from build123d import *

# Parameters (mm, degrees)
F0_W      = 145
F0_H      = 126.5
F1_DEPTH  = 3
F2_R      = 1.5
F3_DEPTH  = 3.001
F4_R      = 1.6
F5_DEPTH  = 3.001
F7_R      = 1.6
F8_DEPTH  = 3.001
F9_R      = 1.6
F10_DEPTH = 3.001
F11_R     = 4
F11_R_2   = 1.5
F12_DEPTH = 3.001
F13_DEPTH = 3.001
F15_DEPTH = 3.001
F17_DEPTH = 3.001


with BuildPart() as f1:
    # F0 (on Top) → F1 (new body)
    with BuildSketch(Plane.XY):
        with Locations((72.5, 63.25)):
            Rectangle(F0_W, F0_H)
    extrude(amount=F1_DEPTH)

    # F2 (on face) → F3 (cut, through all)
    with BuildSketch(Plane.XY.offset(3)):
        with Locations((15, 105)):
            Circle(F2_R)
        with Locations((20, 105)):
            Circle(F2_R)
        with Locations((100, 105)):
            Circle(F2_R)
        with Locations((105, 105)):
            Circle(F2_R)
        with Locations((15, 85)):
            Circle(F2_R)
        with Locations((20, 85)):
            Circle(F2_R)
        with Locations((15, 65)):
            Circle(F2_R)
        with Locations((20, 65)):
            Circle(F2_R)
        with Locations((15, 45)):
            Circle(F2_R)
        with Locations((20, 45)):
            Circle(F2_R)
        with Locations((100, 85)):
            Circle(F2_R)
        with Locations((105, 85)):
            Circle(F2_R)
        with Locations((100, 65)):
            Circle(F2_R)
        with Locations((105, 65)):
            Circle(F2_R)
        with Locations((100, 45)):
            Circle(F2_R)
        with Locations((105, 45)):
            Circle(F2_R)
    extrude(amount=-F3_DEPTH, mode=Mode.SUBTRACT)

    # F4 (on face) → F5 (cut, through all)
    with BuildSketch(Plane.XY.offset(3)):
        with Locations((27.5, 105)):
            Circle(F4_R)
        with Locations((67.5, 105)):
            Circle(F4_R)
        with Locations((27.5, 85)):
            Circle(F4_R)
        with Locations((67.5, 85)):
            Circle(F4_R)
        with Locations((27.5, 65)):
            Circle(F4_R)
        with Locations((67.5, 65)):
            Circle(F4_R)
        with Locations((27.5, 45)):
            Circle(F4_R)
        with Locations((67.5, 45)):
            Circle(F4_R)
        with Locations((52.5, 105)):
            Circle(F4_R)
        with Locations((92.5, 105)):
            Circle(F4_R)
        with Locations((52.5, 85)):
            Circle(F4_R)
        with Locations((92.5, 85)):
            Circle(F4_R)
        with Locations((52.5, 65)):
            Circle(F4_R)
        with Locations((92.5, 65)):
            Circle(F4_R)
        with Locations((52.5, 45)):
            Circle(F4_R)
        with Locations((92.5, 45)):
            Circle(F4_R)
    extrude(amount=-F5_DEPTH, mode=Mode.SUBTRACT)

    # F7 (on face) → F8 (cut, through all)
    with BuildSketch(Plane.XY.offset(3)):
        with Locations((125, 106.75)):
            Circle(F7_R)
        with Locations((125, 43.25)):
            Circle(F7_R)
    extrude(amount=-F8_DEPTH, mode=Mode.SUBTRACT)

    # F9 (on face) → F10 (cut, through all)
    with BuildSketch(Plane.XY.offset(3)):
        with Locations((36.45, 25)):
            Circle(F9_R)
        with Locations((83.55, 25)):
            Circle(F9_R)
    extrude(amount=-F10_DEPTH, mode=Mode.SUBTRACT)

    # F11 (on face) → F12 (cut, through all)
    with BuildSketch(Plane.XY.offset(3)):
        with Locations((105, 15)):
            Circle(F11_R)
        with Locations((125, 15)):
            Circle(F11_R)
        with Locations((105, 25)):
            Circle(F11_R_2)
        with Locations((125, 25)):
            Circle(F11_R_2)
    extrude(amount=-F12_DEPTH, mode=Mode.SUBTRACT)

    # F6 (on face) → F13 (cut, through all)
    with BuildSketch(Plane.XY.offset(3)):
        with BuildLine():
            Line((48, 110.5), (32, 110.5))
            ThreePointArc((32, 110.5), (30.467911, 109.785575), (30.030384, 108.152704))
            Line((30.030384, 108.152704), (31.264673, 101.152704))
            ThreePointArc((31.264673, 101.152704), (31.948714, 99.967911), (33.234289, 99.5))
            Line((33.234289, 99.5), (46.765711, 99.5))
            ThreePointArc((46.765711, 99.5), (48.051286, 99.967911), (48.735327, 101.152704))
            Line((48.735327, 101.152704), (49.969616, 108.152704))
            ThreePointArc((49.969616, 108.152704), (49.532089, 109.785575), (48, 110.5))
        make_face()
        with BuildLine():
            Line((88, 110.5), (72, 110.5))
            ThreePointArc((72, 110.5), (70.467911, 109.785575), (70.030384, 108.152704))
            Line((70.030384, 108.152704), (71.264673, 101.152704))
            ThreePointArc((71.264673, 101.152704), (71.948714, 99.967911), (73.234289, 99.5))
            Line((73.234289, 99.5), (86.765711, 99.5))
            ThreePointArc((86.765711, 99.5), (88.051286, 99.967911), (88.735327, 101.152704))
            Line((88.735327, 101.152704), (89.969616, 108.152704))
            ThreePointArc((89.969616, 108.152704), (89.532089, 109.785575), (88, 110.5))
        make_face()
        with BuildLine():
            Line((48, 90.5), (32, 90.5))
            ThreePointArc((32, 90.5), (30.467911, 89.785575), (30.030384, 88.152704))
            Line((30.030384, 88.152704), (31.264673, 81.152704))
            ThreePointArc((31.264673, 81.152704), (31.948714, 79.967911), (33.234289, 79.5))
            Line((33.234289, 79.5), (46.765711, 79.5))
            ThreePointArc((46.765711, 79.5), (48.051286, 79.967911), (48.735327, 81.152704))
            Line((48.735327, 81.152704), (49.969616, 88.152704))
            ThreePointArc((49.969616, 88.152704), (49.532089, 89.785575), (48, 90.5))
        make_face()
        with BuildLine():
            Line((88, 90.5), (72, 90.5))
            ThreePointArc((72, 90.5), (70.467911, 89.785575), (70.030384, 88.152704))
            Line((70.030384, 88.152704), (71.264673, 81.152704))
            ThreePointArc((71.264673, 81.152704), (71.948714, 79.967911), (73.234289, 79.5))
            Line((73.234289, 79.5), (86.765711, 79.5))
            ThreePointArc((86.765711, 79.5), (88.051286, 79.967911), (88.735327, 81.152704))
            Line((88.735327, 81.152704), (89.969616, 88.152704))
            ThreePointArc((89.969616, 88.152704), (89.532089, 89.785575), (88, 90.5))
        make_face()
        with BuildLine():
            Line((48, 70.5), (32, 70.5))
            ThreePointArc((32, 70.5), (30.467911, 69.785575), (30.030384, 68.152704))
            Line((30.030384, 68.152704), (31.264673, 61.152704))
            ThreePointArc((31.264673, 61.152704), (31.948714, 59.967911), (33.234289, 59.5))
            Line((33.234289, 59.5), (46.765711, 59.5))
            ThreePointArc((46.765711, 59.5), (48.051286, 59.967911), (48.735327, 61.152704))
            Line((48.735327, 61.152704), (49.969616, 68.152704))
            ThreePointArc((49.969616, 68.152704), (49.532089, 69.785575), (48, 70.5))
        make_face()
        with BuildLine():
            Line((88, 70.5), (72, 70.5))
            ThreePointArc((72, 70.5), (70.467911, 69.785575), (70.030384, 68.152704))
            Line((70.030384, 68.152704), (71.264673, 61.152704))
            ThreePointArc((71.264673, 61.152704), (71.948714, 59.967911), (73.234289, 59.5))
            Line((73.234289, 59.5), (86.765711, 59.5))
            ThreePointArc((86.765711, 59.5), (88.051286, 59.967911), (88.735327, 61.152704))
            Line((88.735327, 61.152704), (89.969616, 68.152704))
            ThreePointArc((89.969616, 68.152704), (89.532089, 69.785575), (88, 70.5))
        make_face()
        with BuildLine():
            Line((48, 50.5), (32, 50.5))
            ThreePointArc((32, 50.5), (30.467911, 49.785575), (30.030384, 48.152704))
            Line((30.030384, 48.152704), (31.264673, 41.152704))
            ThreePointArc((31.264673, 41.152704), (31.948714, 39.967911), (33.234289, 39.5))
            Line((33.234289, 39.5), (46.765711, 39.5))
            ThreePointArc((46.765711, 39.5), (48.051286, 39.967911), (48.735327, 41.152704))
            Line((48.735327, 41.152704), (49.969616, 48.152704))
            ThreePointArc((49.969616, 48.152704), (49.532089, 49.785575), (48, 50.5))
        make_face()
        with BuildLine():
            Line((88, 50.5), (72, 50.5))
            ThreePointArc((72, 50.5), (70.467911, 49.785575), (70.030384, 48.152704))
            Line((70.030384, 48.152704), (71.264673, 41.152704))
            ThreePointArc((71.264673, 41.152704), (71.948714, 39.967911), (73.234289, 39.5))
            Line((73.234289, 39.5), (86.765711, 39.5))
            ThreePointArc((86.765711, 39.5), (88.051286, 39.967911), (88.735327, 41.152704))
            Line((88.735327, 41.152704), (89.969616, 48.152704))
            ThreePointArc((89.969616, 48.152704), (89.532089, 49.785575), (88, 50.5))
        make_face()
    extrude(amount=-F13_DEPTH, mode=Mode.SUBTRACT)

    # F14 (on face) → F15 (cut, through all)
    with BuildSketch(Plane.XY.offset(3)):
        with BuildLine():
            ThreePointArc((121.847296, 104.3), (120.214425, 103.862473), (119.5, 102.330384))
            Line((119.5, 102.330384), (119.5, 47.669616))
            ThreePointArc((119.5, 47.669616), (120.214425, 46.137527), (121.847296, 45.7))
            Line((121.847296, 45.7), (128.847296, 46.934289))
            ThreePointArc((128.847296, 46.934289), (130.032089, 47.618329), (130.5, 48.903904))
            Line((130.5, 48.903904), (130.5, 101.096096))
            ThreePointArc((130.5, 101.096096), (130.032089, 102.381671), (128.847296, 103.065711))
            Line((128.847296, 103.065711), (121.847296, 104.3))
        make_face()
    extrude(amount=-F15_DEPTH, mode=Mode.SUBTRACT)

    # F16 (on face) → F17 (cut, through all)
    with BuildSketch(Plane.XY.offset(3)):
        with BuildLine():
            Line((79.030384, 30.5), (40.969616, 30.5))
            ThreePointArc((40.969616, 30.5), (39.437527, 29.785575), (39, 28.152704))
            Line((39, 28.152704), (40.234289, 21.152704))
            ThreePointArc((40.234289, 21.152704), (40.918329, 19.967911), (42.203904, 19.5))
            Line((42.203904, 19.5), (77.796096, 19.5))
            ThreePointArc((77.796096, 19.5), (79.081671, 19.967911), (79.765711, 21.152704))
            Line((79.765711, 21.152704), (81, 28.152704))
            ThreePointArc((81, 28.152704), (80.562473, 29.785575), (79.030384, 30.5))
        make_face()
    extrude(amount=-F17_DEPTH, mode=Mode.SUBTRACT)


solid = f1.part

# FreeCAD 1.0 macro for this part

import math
import FreeCAD as App
import Part
import Sketcher
Q = App.Units.Quantity


def add_polygon(sketch, points):
    """Adds a closed chain of lines whose ends are joined by coincident constraints."""
    first, n = sketch.GeometryCount, len(points)
    for a, b in zip(points, points[1:] + points[:1]):
        sketch.addGeometry(Part.LineSegment(App.Vector(*a, 0), App.Vector(*b, 0)), False)
    for i in range(n):
        sketch.addConstraint(Sketcher.Constraint("Coincident", first + i, 2, first + (i + 1) % n, 1))

doc = App.newDocument("Part")
body = doc.addObject("PartDesign::Body", "Body")

sketch1 = body.newObject("Sketcher::SketchObject", "Sketch")
sketch1.AttachmentSupport = (doc.getObject("XY_Plane"), [""])
sketch1.MapMode = "FlatFace"
add_polygon(sketch1, [(0, 126), (0, 0), (145, 0), (145, 126)])
sketch1.addConstraint([
    Sketcher.Constraint("Vertical", 0),
    Sketcher.Constraint("Horizontal", 1),
    Sketcher.Constraint("Vertical", 2),
    Sketcher.Constraint("Horizontal", 3),
    Sketcher.Constraint("Coincident", 0, 2, -1, 1),
    Sketcher.Constraint("DistanceX", 1, 1, 1, 2, Q("145 mm")),
    Sketcher.Constraint("DistanceY", 0, 2, 0, 1, Q("126.5 mm")),
])
pad1 = body.newObject("PartDesign::Pad", "Pad")
pad1.Profile = sketch1
pad1.Length = 3

sketch2 = body.newObject("Sketcher::SketchObject", "Sketch001")
sketch2.AttachmentSupport = (doc.getObject("XY_Plane"), [""])
sketch2.MapMode = "FlatFace"
sketch2.AttachmentOffset = App.Placement(App.Vector(0, 0, 3), App.Rotation())
sketch2.addGeometry([
    Part.Circle(App.Vector(15, 105, 0), App.Vector(0, 0, 1), 1.5),
    Part.Circle(App.Vector(20, 105, 0), App.Vector(0, 0, 1), 1.5),
    Part.Circle(App.Vector(100, 105, 0), App.Vector(0, 0, 1), 1.5),
    Part.Circle(App.Vector(105, 105, 0), App.Vector(0, 0, 1), 1.5),
    Part.Circle(App.Vector(15, 85, 0), App.Vector(0, 0, 1), 1.5),
    Part.Circle(App.Vector(20, 85, 0), App.Vector(0, 0, 1), 1.5),
    Part.Circle(App.Vector(15, 65, 0), App.Vector(0, 0, 1), 1.5),
    Part.Circle(App.Vector(20, 65, 0), App.Vector(0, 0, 1), 1.5),
    Part.Circle(App.Vector(15, 45, 0), App.Vector(0, 0, 1), 1.5),
    Part.Circle(App.Vector(20, 45, 0), App.Vector(0, 0, 1), 1.5),
    Part.Circle(App.Vector(100, 85, 0), App.Vector(0, 0, 1), 1.5),
    Part.Circle(App.Vector(105, 85, 0), App.Vector(0, 0, 1), 1.5),
    Part.Circle(App.Vector(100, 65, 0), App.Vector(0, 0, 1), 1.5),
    Part.Circle(App.Vector(105, 65, 0), App.Vector(0, 0, 1), 1.5),
    Part.Circle(App.Vector(100, 45, 0), App.Vector(0, 0, 1), 1.5),
    Part.Circle(App.Vector(105, 45, 0), App.Vector(0, 0, 1), 1.5),
], False)
sketch2.addConstraint([
    Sketcher.Constraint("Equal", 0, 1),
    Sketcher.Constraint("Equal", 1, 2),
    Sketcher.Constraint("Equal", 2, 3),
    Sketcher.Constraint("Equal", 3, 4),
    Sketcher.Constraint("Equal", 4, 5),
    Sketcher.Constraint("Equal", 5, 6),
    Sketcher.Constraint("Equal", 6, 7),
    Sketcher.Constraint("Equal", 7, 8),
    Sketcher.Constraint("Equal", 8, 9),
    Sketcher.Constraint("Equal", 9, 10),
    Sketcher.Constraint("Equal", 10, 11),
    Sketcher.Constraint("Equal", 11, 12),
    Sketcher.Constraint("Equal", 12, 13),
    Sketcher.Constraint("Equal", 13, 14),
    Sketcher.Constraint("Equal", 14, 15),
    Sketcher.Constraint("Horizontal", 0, 3, 1, 3),
    Sketcher.Constraint("Horizontal", 1, 3, 2, 3),
    Sketcher.Constraint("Horizontal", 2, 3, 3, 3),
    Sketcher.Constraint("Horizontal", 4, 3, 5, 3),
    Sketcher.Constraint("Horizontal", 6, 3, 7, 3),
    Sketcher.Constraint("Horizontal", 8, 3, 9, 3),
    Sketcher.Constraint("Horizontal", 5, 3, 10, 3),
    Sketcher.Constraint("Horizontal", 10, 3, 11, 3),
    Sketcher.Constraint("Horizontal", 7, 3, 12, 3),
    Sketcher.Constraint("Horizontal", 12, 3, 13, 3),
    Sketcher.Constraint("Horizontal", 9, 3, 14, 3),
    Sketcher.Constraint("Horizontal", 14, 3, 15, 3),
    Sketcher.Constraint("Vertical", 0, 3, 4, 3),
    Sketcher.Constraint("Vertical", 1, 3, 5, 3),
    Sketcher.Constraint("Vertical", 4, 3, 6, 3),
    Sketcher.Constraint("Vertical", 5, 3, 7, 3),
    Sketcher.Constraint("Vertical", 6, 3, 8, 3),
    Sketcher.Constraint("Vertical", 7, 3, 9, 3),
    Sketcher.Constraint("Vertical", 2, 3, 10, 3),
    Sketcher.Constraint("Vertical", 3, 3, 11, 3),
    Sketcher.Constraint("Vertical", 10, 3, 12, 3),
    Sketcher.Constraint("Vertical", 11, 3, 13, 3),
    Sketcher.Constraint("Vertical", 12, 3, 14, 3),
    Sketcher.Constraint("Vertical", 13, 3, 15, 3),
    Sketcher.Constraint("Diameter", 0, Q("3 mm")),
    Sketcher.Constraint("DistanceX", -1, 1, 0, 3, Q("15 mm")),
    Sketcher.Constraint("DistanceY", -1, 1, 0, 3, Q("105 mm")),
    Sketcher.Constraint("DistanceX", -1, 1, 1, 3, Q("20 mm")),
    Sketcher.Constraint("DistanceX", -1, 1, 2, 3, Q("100 mm")),
    Sketcher.Constraint("DistanceX", -1, 1, 3, 3, Q("105 mm")),
    Sketcher.Constraint("DistanceY", -1, 1, 4, 3, Q("85 mm")),
    Sketcher.Constraint("DistanceY", -1, 1, 6, 3, Q("65 mm")),
    Sketcher.Constraint("DistanceY", -1, 1, 8, 3, Q("45 mm")),
])
pocket1 = body.newObject("PartDesign::Pocket", "Pocket")
pocket1.Profile = sketch2
pocket1.Type = "ThroughAll"

sketch3 = body.newObject("Sketcher::SketchObject", "Sketch002")
sketch3.AttachmentSupport = (doc.getObject("XY_Plane"), [""])
sketch3.MapMode = "FlatFace"
sketch3.AttachmentOffset = App.Placement(App.Vector(0, 0, 3), App.Rotation())
sketch3.addGeometry([
    Part.Circle(App.Vector(27.5, 105, 0), App.Vector(0, 0, 1), 1.6),
    Part.Circle(App.Vector(67.5, 105, 0), App.Vector(0, 0, 1), 1.6),
    Part.Circle(App.Vector(27.5, 85, 0), App.Vector(0, 0, 1), 1.6),
    Part.Circle(App.Vector(67.5, 85, 0), App.Vector(0, 0, 1), 1.6),
    Part.Circle(App.Vector(27.5, 65, 0), App.Vector(0, 0, 1), 1.6),
    Part.Circle(App.Vector(67.5, 65, 0), App.Vector(0, 0, 1), 1.6),
    Part.Circle(App.Vector(27.5, 45, 0), App.Vector(0, 0, 1), 1.6),
    Part.Circle(App.Vector(67.5, 45, 0), App.Vector(0, 0, 1), 1.6),
    Part.Circle(App.Vector(52.5, 105, 0), App.Vector(0, 0, 1), 1.6),
    Part.Circle(App.Vector(92.5, 105, 0), App.Vector(0, 0, 1), 1.6),
    Part.Circle(App.Vector(52.5, 85, 0), App.Vector(0, 0, 1), 1.6),
    Part.Circle(App.Vector(92.5, 85, 0), App.Vector(0, 0, 1), 1.6),
    Part.Circle(App.Vector(52.5, 65, 0), App.Vector(0, 0, 1), 1.6),
    Part.Circle(App.Vector(92.5, 65, 0), App.Vector(0, 0, 1), 1.6),
    Part.Circle(App.Vector(52.5, 45, 0), App.Vector(0, 0, 1), 1.6),
    Part.Circle(App.Vector(92.5, 45, 0), App.Vector(0, 0, 1), 1.6),
], False)
sketch3.addConstraint([
    Sketcher.Constraint("Equal", 0, 1),
    Sketcher.Constraint("Equal", 1, 2),
    Sketcher.Constraint("Equal", 2, 3),
    Sketcher.Constraint("Equal", 3, 4),
    Sketcher.Constraint("Equal", 4, 5),
    Sketcher.Constraint("Equal", 5, 6),
    Sketcher.Constraint("Equal", 6, 7),
    Sketcher.Constraint("Equal", 7, 8),
    Sketcher.Constraint("Equal", 8, 9),
    Sketcher.Constraint("Equal", 9, 10),
    Sketcher.Constraint("Equal", 10, 11),
    Sketcher.Constraint("Equal", 11, 12),
    Sketcher.Constraint("Equal", 12, 13),
    Sketcher.Constraint("Equal", 13, 14),
    Sketcher.Constraint("Equal", 14, 15),
    Sketcher.Constraint("Horizontal", 0, 3, 1, 3),
    Sketcher.Constraint("Horizontal", 2, 3, 3, 3),
    Sketcher.Constraint("Horizontal", 4, 3, 5, 3),
    Sketcher.Constraint("Horizontal", 6, 3, 7, 3),
    Sketcher.Constraint("Horizontal", 1, 3, 8, 3),
    Sketcher.Constraint("Horizontal", 8, 3, 9, 3),
    Sketcher.Constraint("Horizontal", 3, 3, 10, 3),
    Sketcher.Constraint("Horizontal", 10, 3, 11, 3),
    Sketcher.Constraint("Horizontal", 5, 3, 12, 3),
    Sketcher.Constraint("Horizontal", 12, 3, 13, 3),
    Sketcher.Constraint("Horizontal", 7, 3, 14, 3),
    Sketcher.Constraint("Horizontal", 14, 3, 15, 3),
    Sketcher.Constraint("Vertical", 0, 3, 2, 3),
    Sketcher.Constraint("Vertical", 1, 3, 3, 3),
    Sketcher.Constraint("Vertical", 2, 3, 4, 3),
    Sketcher.Constraint("Vertical", 3, 3, 5, 3),
    Sketcher.Constraint("Vertical", 4, 3, 6, 3),
    Sketcher.Constraint("Vertical", 5, 3, 7, 3),
    Sketcher.Constraint("Vertical", 8, 3, 10, 3),
    Sketcher.Constraint("Vertical", 9, 3, 11, 3),
    Sketcher.Constraint("Vertical", 10, 3, 12, 3),
    Sketcher.Constraint("Vertical", 11, 3, 13, 3),
    Sketcher.Constraint("Vertical", 12, 3, 14, 3),
    Sketcher.Constraint("Vertical", 13, 3, 15, 3),
    Sketcher.Constraint("Diameter", 0, Q("3.2 mm")),
    Sketcher.Constraint("DistanceY", -1, 1, 0, 3, Q("105 mm")),
    Sketcher.Constraint("DistanceY", -1, 1, 2, 3, Q("85 mm")),
    Sketcher.Constraint("DistanceY", -1, 1, 4, 3, Q("65 mm")),
    Sketcher.Constraint("DistanceY", -1, 1, 6, 3, Q("45 mm")),
    Sketcher.Constraint("DistanceX", 0, 3, 1, 3, Q("40 mm")),
    Sketcher.Constraint("DistanceX", 8, 3, 1, 3, Q("15 mm")),
    Sketcher.Constraint("DistanceX", 1, 3, 9, 3, Q("25 mm")),
    Sketcher.Constraint("DistanceX", -1, 1, 0, 3, Q("27.5 mm")),
])
pocket2 = body.newObject("PartDesign::Pocket", "Pocket001")
pocket2.Profile = sketch3
pocket2.Type = "ThroughAll"

sketch4 = body.newObject("Sketcher::SketchObject", "Sketch003")
sketch4.AttachmentSupport = (doc.getObject("XY_Plane"), [""])
sketch4.MapMode = "FlatFace"
sketch4.AttachmentOffset = App.Placement(App.Vector(0, 0, 3), App.Rotation())
sketch4.addGeometry([
    Part.Circle(App.Vector(125, 106.8, 0), App.Vector(0, 0, 1), 1.6),
    Part.Circle(App.Vector(125, 43.2, 0), App.Vector(0, 0, 1), 1.6),
], False)
sketch4.addConstraint([
    Sketcher.Constraint("Equal", 0, 1),
    Sketcher.Constraint("Vertical", 0, 3, 1, 3),
    Sketcher.Constraint("Diameter", 0, Q("3.2 mm")),
    Sketcher.Constraint("DistanceX", -1, 1, 0, 3, Q("125 mm")),
    Sketcher.Constraint("DistanceY", 1, 3, 0, 3, Q("63.5 mm")),
    Sketcher.Constraint("DistanceY", -1, 1, 0, 3, Q("106.75 mm")),
])
pocket3 = body.newObject("PartDesign::Pocket", "Pocket002")
pocket3.Profile = sketch4
pocket3.Type = "ThroughAll"

sketch5 = body.newObject("Sketcher::SketchObject", "Sketch004")
sketch5.AttachmentSupport = (doc.getObject("XY_Plane"), [""])
sketch5.MapMode = "FlatFace"
sketch5.AttachmentOffset = App.Placement(App.Vector(0, 0, 3), App.Rotation())
sketch5.addGeometry([
    Part.Circle(App.Vector(36.5, 25, 0), App.Vector(0, 0, 1), 1.6),
    Part.Circle(App.Vector(83.5, 25, 0), App.Vector(0, 0, 1), 1.6),
], False)
sketch5.addConstraint([
    Sketcher.Constraint("Equal", 0, 1),
    Sketcher.Constraint("Horizontal", 0, 3, 1, 3),
    Sketcher.Constraint("Diameter", 0, Q("3.2 mm")),
    Sketcher.Constraint("DistanceY", -1, 1, 0, 3, Q("25 mm")),
    Sketcher.Constraint("DistanceX", 0, 3, 1, 3, Q("47.1 mm")),
    Sketcher.Constraint("DistanceX", -1, 1, 0, 3, Q("36.45 mm")),
])
pocket4 = body.newObject("PartDesign::Pocket", "Pocket003")
pocket4.Profile = sketch5
pocket4.Type = "ThroughAll"

sketch6 = body.newObject("Sketcher::SketchObject", "Sketch005")
sketch6.AttachmentSupport = (doc.getObject("XY_Plane"), [""])
sketch6.MapMode = "FlatFace"
sketch6.AttachmentOffset = App.Placement(App.Vector(0, 0, 3), App.Rotation())
sketch6.addGeometry([
    Part.Circle(App.Vector(105, 15, 0), App.Vector(0, 0, 1), 4),
    Part.Circle(App.Vector(125, 15, 0), App.Vector(0, 0, 1), 4),
    Part.Circle(App.Vector(105, 25, 0), App.Vector(0, 0, 1), 1.5),
    Part.Circle(App.Vector(125, 25, 0), App.Vector(0, 0, 1), 1.5),
], False)
sketch6.addConstraint([
    Sketcher.Constraint("Equal", 0, 1),
    Sketcher.Constraint("Equal", 2, 3),
    Sketcher.Constraint("Horizontal", 0, 3, 1, 3),
    Sketcher.Constraint("Horizontal", 2, 3, 3, 3),
    Sketcher.Constraint("Vertical", 0, 3, 2, 3),
    Sketcher.Constraint("Vertical", 1, 3, 3, 3),
    Sketcher.Constraint("Diameter", 0, Q("8 mm")),
    Sketcher.Constraint("Diameter", 2, Q("3 mm")),
    Sketcher.Constraint("DistanceX", -1, 1, 0, 3, Q("105 mm")),
    Sketcher.Constraint("DistanceY", -1, 1, 0, 3, Q("15 mm")),
    Sketcher.Constraint("DistanceX", -1, 1, 1, 3, Q("125 mm")),
    Sketcher.Constraint("DistanceY", -1, 1, 2, 3, Q("25 mm")),
])
pocket5 = body.newObject("PartDesign::Pocket", "Pocket004")
pocket5.Profile = sketch6
pocket5.Type = "ThroughAll"

sketch7 = body.newObject("Sketcher::SketchObject", "Sketch006")
sketch7.AttachmentSupport = (doc.getObject("XY_Plane"), [""])
sketch7.MapMode = "FlatFace"
sketch7.AttachmentOffset = App.Placement(App.Vector(0, 0, 3), App.Rotation())
sketch7.addGeometry([
    Part.LineSegment(App.Vector(48, 110.5, 0), App.Vector(32, 110.5, 0)),
    Part.ArcOfCircle(Part.Circle(App.Vector(32, 108.5, 0), App.Vector(0, 0, 1), 2), math.radians(90), math.radians(190)),
    Part.LineSegment(App.Vector(30, 108.2, 0), App.Vector(31.3, 101.2, 0)),
    Part.ArcOfCircle(Part.Circle(App.Vector(33.2, 101.5, 0), App.Vector(0, 0, 1), 2), math.radians(-170), math.radians(-90)),
    Part.LineSegment(App.Vector(33.2, 99.5, 0), App.Vector(46.8, 99.5, 0)),
    Part.ArcOfCircle(Part.Circle(App.Vector(46.8, 101.5, 0), App.Vector(0, 0, 1), 2), math.radians(-90), math.radians(-10)),
    Part.LineSegment(App.Vector(48.7, 101.2, 0), App.Vector(50, 108.2, 0)),
    Part.ArcOfCircle(Part.Circle(App.Vector(48, 108.5, 0), App.Vector(0, 0, 1), 2), math.radians(-10), math.radians(90)),
    Part.LineSegment(App.Vector(88, 110.5, 0), App.Vector(72, 110.5, 0)),
    Part.ArcOfCircle(Part.Circle(App.Vector(72, 108.5, 0), App.Vector(0, 0, 1), 2), math.radians(90), math.radians(190)),
    Part.LineSegment(App.Vector(70, 108.2, 0), App.Vector(71.3, 101.2, 0)),
    Part.ArcOfCircle(Part.Circle(App.Vector(73.2, 101.5, 0), App.Vector(0, 0, 1), 2), math.radians(-170), math.radians(-90)),
    Part.LineSegment(App.Vector(73.2, 99.5, 0), App.Vector(86.8, 99.5, 0)),
    Part.ArcOfCircle(Part.Circle(App.Vector(86.8, 101.5, 0), App.Vector(0, 0, 1), 2), math.radians(-90), math.radians(-10)),
    Part.LineSegment(App.Vector(88.7, 101.2, 0), App.Vector(90, 108.2, 0)),
    Part.ArcOfCircle(Part.Circle(App.Vector(88, 108.5, 0), App.Vector(0, 0, 1), 2), math.radians(-10), math.radians(90)),
    Part.LineSegment(App.Vector(48, 90.5, 0), App.Vector(32, 90.5, 0)),
    Part.ArcOfCircle(Part.Circle(App.Vector(32, 88.5, 0), App.Vector(0, 0, 1), 2), math.radians(90), math.radians(190)),
    Part.LineSegment(App.Vector(30, 88.2, 0), App.Vector(31.3, 81.2, 0)),
    Part.ArcOfCircle(Part.Circle(App.Vector(33.2, 81.5, 0), App.Vector(0, 0, 1), 2), math.radians(-170), math.radians(-90)),
    Part.LineSegment(App.Vector(33.2, 79.5, 0), App.Vector(46.8, 79.5, 0)),
    Part.ArcOfCircle(Part.Circle(App.Vector(46.8, 81.5, 0), App.Vector(0, 0, 1), 2), math.radians(-90), math.radians(-10)),
    Part.LineSegment(App.Vector(48.7, 81.2, 0), App.Vector(50, 88.2, 0)),
    Part.ArcOfCircle(Part.Circle(App.Vector(48, 88.5, 0), App.Vector(0, 0, 1), 2), math.radians(-10), math.radians(90)),
    Part.LineSegment(App.Vector(88, 90.5, 0), App.Vector(72, 90.5, 0)),
    Part.ArcOfCircle(Part.Circle(App.Vector(72, 88.5, 0), App.Vector(0, 0, 1), 2), math.radians(90), math.radians(190)),
    Part.LineSegment(App.Vector(70, 88.2, 0), App.Vector(71.3, 81.2, 0)),
    Part.ArcOfCircle(Part.Circle(App.Vector(73.2, 81.5, 0), App.Vector(0, 0, 1), 2), math.radians(-170), math.radians(-90)),
    Part.LineSegment(App.Vector(73.2, 79.5, 0), App.Vector(86.8, 79.5, 0)),
    Part.ArcOfCircle(Part.Circle(App.Vector(86.8, 81.5, 0), App.Vector(0, 0, 1), 2), math.radians(-90), math.radians(-10)),
    Part.LineSegment(App.Vector(88.7, 81.2, 0), App.Vector(90, 88.2, 0)),
    Part.ArcOfCircle(Part.Circle(App.Vector(88, 88.5, 0), App.Vector(0, 0, 1), 2), math.radians(-10), math.radians(90)),
    Part.LineSegment(App.Vector(48, 70.5, 0), App.Vector(32, 70.5, 0)),
    Part.ArcOfCircle(Part.Circle(App.Vector(32, 68.5, 0), App.Vector(0, 0, 1), 2), math.radians(90), math.radians(190)),
    Part.LineSegment(App.Vector(30, 68.2, 0), App.Vector(31.3, 61.2, 0)),
    Part.ArcOfCircle(Part.Circle(App.Vector(33.2, 61.5, 0), App.Vector(0, 0, 1), 2), math.radians(-170), math.radians(-90)),
    Part.LineSegment(App.Vector(33.2, 59.5, 0), App.Vector(46.8, 59.5, 0)),
    Part.ArcOfCircle(Part.Circle(App.Vector(46.8, 61.5, 0), App.Vector(0, 0, 1), 2), math.radians(-90), math.radians(-10)),
    Part.LineSegment(App.Vector(48.7, 61.2, 0), App.Vector(50, 68.2, 0)),
    Part.ArcOfCircle(Part.Circle(App.Vector(48, 68.5, 0), App.Vector(0, 0, 1), 2), math.radians(-10), math.radians(90)),
    Part.LineSegment(App.Vector(88, 70.5, 0), App.Vector(72, 70.5, 0)),
    Part.ArcOfCircle(Part.Circle(App.Vector(72, 68.5, 0), App.Vector(0, 0, 1), 2), math.radians(90), math.radians(190)),
    Part.LineSegment(App.Vector(70, 68.2, 0), App.Vector(71.3, 61.2, 0)),
    Part.ArcOfCircle(Part.Circle(App.Vector(73.2, 61.5, 0), App.Vector(0, 0, 1), 2), math.radians(-170), math.radians(-90)),
    Part.LineSegment(App.Vector(73.2, 59.5, 0), App.Vector(86.8, 59.5, 0)),
    Part.ArcOfCircle(Part.Circle(App.Vector(86.8, 61.5, 0), App.Vector(0, 0, 1), 2), math.radians(-90), math.radians(-10)),
    Part.LineSegment(App.Vector(88.7, 61.2, 0), App.Vector(90, 68.2, 0)),
    Part.ArcOfCircle(Part.Circle(App.Vector(88, 68.5, 0), App.Vector(0, 0, 1), 2), math.radians(-10), math.radians(90)),
    Part.LineSegment(App.Vector(48, 50.5, 0), App.Vector(32, 50.5, 0)),
    Part.ArcOfCircle(Part.Circle(App.Vector(32, 48.5, 0), App.Vector(0, 0, 1), 2), math.radians(90), math.radians(190)),
    Part.LineSegment(App.Vector(30, 48.2, 0), App.Vector(31.3, 41.2, 0)),
    Part.ArcOfCircle(Part.Circle(App.Vector(33.2, 41.5, 0), App.Vector(0, 0, 1), 2), math.radians(-170), math.radians(-90)),
    Part.LineSegment(App.Vector(33.2, 39.5, 0), App.Vector(46.8, 39.5, 0)),
    Part.ArcOfCircle(Part.Circle(App.Vector(46.8, 41.5, 0), App.Vector(0, 0, 1), 2), math.radians(-90), math.radians(-10)),
    Part.LineSegment(App.Vector(48.7, 41.2, 0), App.Vector(50, 48.2, 0)),
    Part.ArcOfCircle(Part.Circle(App.Vector(48, 48.5, 0), App.Vector(0, 0, 1), 2), math.radians(-10), math.radians(90)),
    Part.LineSegment(App.Vector(88, 50.5, 0), App.Vector(72, 50.5, 0)),
    Part.ArcOfCircle(Part.Circle(App.Vector(72, 48.5, 0), App.Vector(0, 0, 1), 2), math.radians(90), math.radians(190)),
    Part.LineSegment(App.Vector(70, 48.2, 0), App.Vector(71.3, 41.2, 0)),
    Part.ArcOfCircle(Part.Circle(App.Vector(73.2, 41.5, 0), App.Vector(0, 0, 1), 2), math.radians(-170), math.radians(-90)),
    Part.LineSegment(App.Vector(73.2, 39.5, 0), App.Vector(86.8, 39.5, 0)),
    Part.ArcOfCircle(Part.Circle(App.Vector(86.8, 41.5, 0), App.Vector(0, 0, 1), 2), math.radians(-90), math.radians(-10)),
    Part.LineSegment(App.Vector(88.7, 41.2, 0), App.Vector(90, 48.2, 0)),
    Part.ArcOfCircle(Part.Circle(App.Vector(88, 48.5, 0), App.Vector(0, 0, 1), 2), math.radians(-10), math.radians(90)),
], False)
sketch7.addConstraint([
    Sketcher.Constraint("Tangent", 0, 2, 1, 1),
    Sketcher.Constraint("Tangent", 1, 2, 2, 1),
    Sketcher.Constraint("Tangent", 2, 2, 3, 1),
    Sketcher.Constraint("Tangent", 3, 2, 4, 1),
    Sketcher.Constraint("Tangent", 4, 2, 5, 1),
    Sketcher.Constraint("Tangent", 5, 2, 6, 1),
    Sketcher.Constraint("Tangent", 6, 2, 7, 1),
    Sketcher.Constraint("Tangent", 7, 2, 0, 1),
    Sketcher.Constraint("Tangent", 8, 2, 9, 1),
    Sketcher.Constraint("Tangent", 9, 2, 10, 1),
    Sketcher.Constraint("Tangent", 10, 2, 11, 1),
    Sketcher.Constraint("Tangent", 11, 2, 12, 1),
    Sketcher.Constraint("Tangent", 12, 2, 13, 1),
    Sketcher.Constraint("Tangent", 13, 2, 14, 1),
    Sketcher.Constraint("Tangent", 14, 2, 15, 1),
    Sketcher.Constraint("Tangent", 15, 2, 8, 1),
    Sketcher.Constraint("Tangent", 16, 2, 17, 1),
    Sketcher.Constraint("Tangent", 17, 2, 18, 1),
    Sketcher.Constraint("Tangent", 18, 2, 19, 1),
    Sketcher.Constraint("Tangent", 19, 2, 20, 1),
    Sketcher.Constraint("Tangent", 20, 2, 21, 1),
    Sketcher.Constraint("Tangent", 21, 2, 22, 1),
    Sketcher.Constraint("Tangent", 22, 2, 23, 1),
    Sketcher.Constraint("Tangent", 23, 2, 16, 1),
    Sketcher.Constraint("Tangent", 24, 2, 25, 1),
    Sketcher.Constraint("Tangent", 25, 2, 26, 1),
    Sketcher.Constraint("Tangent", 26, 2, 27, 1),
    Sketcher.Constraint("Tangent", 27, 2, 28, 1),
    Sketcher.Constraint("Tangent", 28, 2, 29, 1),
    Sketcher.Constraint("Tangent", 29, 2, 30, 1),
    Sketcher.Constraint("Tangent", 30, 2, 31, 1),
    Sketcher.Constraint("Tangent", 31, 2, 24, 1),
    Sketcher.Constraint("Tangent", 32, 2, 33, 1),
    Sketcher.Constraint("Tangent", 33, 2, 34, 1),
    Sketcher.Constraint("Tangent", 34, 2, 35, 1),
    Sketcher.Constraint("Tangent", 35, 2, 36, 1),
    Sketcher.Constraint("Tangent", 36, 2, 37, 1),
    Sketcher.Constraint("Tangent", 37, 2, 38, 1),
    Sketcher.Constraint("Tangent", 38, 2, 39, 1),
    Sketcher.Constraint("Tangent", 39, 2, 32, 1),
    Sketcher.Constraint("Tangent", 40, 2, 41, 1),
    Sketcher.Constraint("Tangent", 41, 2, 42, 1),
    Sketcher.Constraint("Tangent", 42, 2, 43, 1),
    Sketcher.Constraint("Tangent", 43, 2, 44, 1),
    Sketcher.Constraint("Tangent", 44, 2, 45, 1),
    Sketcher.Constraint("Tangent", 45, 2, 46, 1),
    Sketcher.Constraint("Tangent", 46, 2, 47, 1),
    Sketcher.Constraint("Tangent", 47, 2, 40, 1),
    Sketcher.Constraint("Tangent", 48, 2, 49, 1),
    Sketcher.Constraint("Tangent", 49, 2, 50, 1),
    Sketcher.Constraint("Tangent", 50, 2, 51, 1),
    Sketcher.Constraint("Tangent", 51, 2, 52, 1),
    Sketcher.Constraint("Tangent", 52, 2, 53, 1),
    Sketcher.Constraint("Tangent", 53, 2, 54, 1),
    Sketcher.Constraint("Tangent", 54, 2, 55, 1),
    Sketcher.Constraint("Tangent", 55, 2, 48, 1),
    Sketcher.Constraint("Tangent", 56, 2, 57, 1),
    Sketcher.Constraint("Tangent", 57, 2, 58, 1),
    Sketcher.Constraint("Tangent", 58, 2, 59, 1),
    Sketcher.Constraint("Tangent", 59, 2, 60, 1),
    Sketcher.Constraint("Tangent", 60, 2, 61, 1),
    Sketcher.Constraint("Tangent", 61, 2, 62, 1),
    Sketcher.Constraint("Tangent", 62, 2, 63, 1),
    Sketcher.Constraint("Tangent", 63, 2, 56, 1),
    Sketcher.Constraint("Horizontal", 0),
    Sketcher.Constraint("Horizontal", 4),
    Sketcher.Constraint("Horizontal", 8),
    Sketcher.Constraint("Horizontal", 12),
    Sketcher.Constraint("Horizontal", 16),
    Sketcher.Constraint("Horizontal", 20),
    Sketcher.Constraint("Horizontal", 24),
    Sketcher.Constraint("Horizontal", 28),
    Sketcher.Constraint("Horizontal", 32),
    Sketcher.Constraint("Horizontal", 36),
    Sketcher.Constraint("Horizontal", 40),
    Sketcher.Constraint("Horizontal", 44),
    Sketcher.Constraint("Horizontal", 48),
    Sketcher.Constraint("Horizontal", 52),
    Sketcher.Constraint("Horizontal", 56),
    Sketcher.Constraint("Horizontal", 60),
    Sketcher.Constraint("Equal", 1, 3),
    Sketcher.Constraint("Equal", 3, 5),
    Sketcher.Constraint("Equal", 5, 7),
    Sketcher.Constraint("Equal", 7, 9),
    Sketcher.Constraint("Equal", 9, 11),
    Sketcher.Constraint("Equal", 11, 13),
    Sketcher.Constraint("Equal", 13, 15),
    Sketcher.Constraint("Equal", 15, 17),
    Sketcher.Constraint("Equal", 17, 19),
    Sketcher.Constraint("Equal", 19, 21),
    Sketcher.Constraint("Equal", 21, 23),
    Sketcher.Constraint("Equal", 23, 25),
    Sketcher.Constraint("Equal", 25, 27),
    Sketcher.Constraint("Equal", 27, 29),
    Sketcher.Constraint("Equal", 29, 31),
    Sketcher.Constraint("Equal", 31, 33),
    Sketcher.Constraint("Equal", 33, 35),
    Sketcher.Constraint("Equal", 35, 37),
    Sketcher.Constraint("Equal", 37, 39),
    Sketcher.Constraint("Equal", 39, 41),
    Sketcher.Constraint("Equal", 41, 43),
    Sketcher.Constraint("Equal", 43, 45),
    Sketcher.Constraint("Equal", 45, 47),
    Sketcher.Constraint("Equal", 47, 49),
    Sketcher.Constraint("Equal", 49, 51),
    Sketcher.Constraint("Equal", 51, 53),
    Sketcher.Constraint("Equal", 53, 55),
    Sketcher.Constraint("Equal", 55, 57),
    Sketcher.Constraint("Equal", 57, 59),
    Sketcher.Constraint("Equal", 59, 61),
    Sketcher.Constraint("Equal", 61, 63),
    Sketcher.Constraint("Parallel", 2, 10),
    Sketcher.Constraint("Parallel", 6, 14),
    Sketcher.Constraint("Parallel", 10, 18),
    Sketcher.Constraint("Parallel", 14, 22),
    Sketcher.Constraint("Parallel", 18, 26),
    Sketcher.Constraint("Parallel", 22, 30),
    Sketcher.Constraint("Parallel", 26, 34),
    Sketcher.Constraint("Parallel", 30, 38),
    Sketcher.Constraint("Parallel", 34, 42),
    Sketcher.Constraint("Parallel", 38, 46),
    Sketcher.Constraint("Parallel", 42, 50),
    Sketcher.Constraint("Parallel", 46, 54),
    Sketcher.Constraint("Parallel", 50, 58),
    Sketcher.Constraint("Parallel", 54, 62),
    Sketcher.Constraint("Horizontal", 7, 3, 9, 3),
    Sketcher.Constraint("Horizontal", 5, 3, 11, 3),
    Sketcher.Constraint("Horizontal", 23, 3, 25, 3),
    Sketcher.Constraint("Horizontal", 21, 3, 27, 3),
    Sketcher.Constraint("Horizontal", 39, 3, 41, 3),
    Sketcher.Constraint("Horizontal", 37, 3, 43, 3),
    Sketcher.Constraint("Horizontal", 55, 3, 57, 3),
    Sketcher.Constraint("Horizontal", 53, 3, 59, 3),
    Sketcher.Constraint("Horizontal", 2, 2, 5, 2),
    Sketcher.Constraint("Vertical", 1, 3, 17, 3),
    Sketcher.Constraint("Vertical", 3, 3, 19, 3),
    Sketcher.Constraint("Vertical", 5, 3, 21, 3),
    Sketcher.Constraint("Vertical", 9, 3, 25, 3),
    Sketcher.Constraint("Vertical", 13, 3, 29, 3),
    Sketcher.Constraint("Vertical", 17, 3, 33, 3),
    Sketcher.Constraint("Vertical", 19, 3, 35, 3),
    Sketcher.Constraint("Vertical", 21, 3, 37, 3),
    Sketcher.Constraint("Vertical", 25, 3, 41, 3),
    Sketcher.Constraint("Vertical", 29, 3, 45, 3),
    Sketcher.Constraint("Vertical", 33, 3, 49, 3),
    Sketcher.Constraint("Vertical", 35, 3, 51, 3),
    Sketcher.Constraint("Vertical", 37, 3, 53, 3),
    Sketcher.Constraint("Vertical", 41, 3, 57, 3),
    Sketcher.Constraint("Vertical", 45, 3, 61, 3),
    Sketcher.Constraint("Equal", 0, 8),
    Sketcher.Constraint("Radius", 1, Q("2.000001 mm")),
    Sketcher.Constraint("DistanceX", 0, 2, 0, 1, Q("16 mm")),
    Sketcher.Constraint("Angle", 2, Q("-79.999999 deg")),
    Sketcher.Constraint("DistanceX", -1, 1, 1, 3, Q("32 mm")),
    Sketcher.Constraint("DistanceX", -1, 1, 9, 3, Q("72 mm")),
    Sketcher.Constraint("DistanceY", -1, 1, 1, 3, Q("108.499999 mm")),
    Sketcher.Constraint("DistanceY", -1, 1, 3, 3, Q("101.500001 mm")),
    Sketcher.Constraint("DistanceY", -1, 1, 17, 3, Q("88.499999 mm")),
    Sketcher.Constraint("DistanceY", -1, 1, 33, 3, Q("68.499999 mm")),
    Sketcher.Constraint("DistanceY", -1, 1, 49, 3, Q("48.499999 mm")),
])
pocket6 = body.newObject("PartDesign::Pocket", "Pocket005")
pocket6.Profile = sketch7
pocket6.Type = "ThroughAll"

sketch8 = body.newObject("Sketcher::SketchObject", "Sketch007")
sketch8.AttachmentSupport = (doc.getObject("XY_Plane"), [""])
sketch8.MapMode = "FlatFace"
sketch8.AttachmentOffset = App.Placement(App.Vector(0, 0, 3), App.Rotation())
sketch8.addGeometry([
    Part.ArcOfCircle(Part.Circle(App.Vector(121.5, 102.3, 0), App.Vector(0, 0, 1), 2), math.radians(80), math.radians(180)),
    Part.LineSegment(App.Vector(119.5, 102.3, 0), App.Vector(119.5, 47.7, 0)),
    Part.ArcOfCircle(Part.Circle(App.Vector(121.5, 47.7, 0), App.Vector(0, 0, 1), 2), math.radians(-180), math.radians(-80)),
    Part.LineSegment(App.Vector(121.8, 45.7, 0), App.Vector(128.8, 46.9, 0)),
    Part.ArcOfCircle(Part.Circle(App.Vector(128.5, 48.9, 0), App.Vector(0, 0, 1), 2), math.radians(-80), math.radians(0)),
    Part.LineSegment(App.Vector(130.5, 48.9, 0), App.Vector(130.5, 101.1, 0)),
    Part.ArcOfCircle(Part.Circle(App.Vector(128.5, 101.1, 0), App.Vector(0, 0, 1), 2), math.radians(0), math.radians(80)),
    Part.LineSegment(App.Vector(128.8, 103.1, 0), App.Vector(121.8, 104.3, 0)),
], False)
sketch8.addConstraint([
    Sketcher.Constraint("Tangent", 0, 2, 1, 1),
    Sketcher.Constraint("Tangent", 1, 2, 2, 1),
    Sketcher.Constraint("Tangent", 2, 2, 3, 1),
    Sketcher.Constraint("Tangent", 3, 2, 4, 1),
    Sketcher.Constraint("Tangent", 4, 2, 5, 1),
    Sketcher.Constraint("Tangent", 5, 2, 6, 1),
    Sketcher.Constraint("Tangent", 6, 2, 7, 1),
    Sketcher.Constraint("Tangent", 7, 2, 0, 1),
    Sketcher.Constraint("Vertical", 1),
    Sketcher.Constraint("Vertical", 5),
    Sketcher.Constraint("Equal", 0, 2),
    Sketcher.Constraint("Equal", 2, 4),
    Sketcher.Constraint("Equal", 4, 6),
    Sketcher.Constraint("Vertical", 3, 2, 6, 2),
    Sketcher.Constraint("Radius", 0, Q("2.000001 mm")),
    Sketcher.Constraint("Angle", 3, Q("10.000001 deg")),
    Sketcher.Constraint("DistanceX", 2, 3, 4, 3, Q("7 mm")),
    Sketcher.Constraint("DistanceX", -1, 1, 0, 3, Q("121.500001 mm")),
    Sketcher.Constraint("DistanceY", -1, 1, 2, 2, Q("45.7 mm")),
    Sketcher.Constraint("DistanceY", -1, 1, 7, 2, Q("104.3 mm")),
])
pocket7 = body.newObject("PartDesign::Pocket", "Pocket006")
pocket7.Profile = sketch8
pocket7.Type = "ThroughAll"

sketch9 = body.newObject("Sketcher::SketchObject", "Sketch008")
sketch9.AttachmentSupport = (doc.getObject("XY_Plane"), [""])
sketch9.MapMode = "FlatFace"
sketch9.AttachmentOffset = App.Placement(App.Vector(0, 0, 3), App.Rotation())
sketch9.addGeometry([
    Part.LineSegment(App.Vector(79, 30.5, 0), App.Vector(41, 30.5, 0)),
    Part.ArcOfCircle(Part.Circle(App.Vector(41, 28.5, 0), App.Vector(0, 0, 1), 2), math.radians(90), math.radians(190)),
    Part.LineSegment(App.Vector(39, 28.2, 0), App.Vector(40.2, 21.2, 0)),
    Part.ArcOfCircle(Part.Circle(App.Vector(42.2, 21.5, 0), App.Vector(0, 0, 1), 2), math.radians(-170), math.radians(-90)),
    Part.LineSegment(App.Vector(42.2, 19.5, 0), App.Vector(77.8, 19.5, 0)),
    Part.ArcOfCircle(Part.Circle(App.Vector(77.8, 21.5, 0), App.Vector(0, 0, 1), 2), math.radians(-90), math.radians(-10)),
    Part.LineSegment(App.Vector(79.8, 21.2, 0), App.Vector(81, 28.2, 0)),
    Part.ArcOfCircle(Part.Circle(App.Vector(79, 28.5, 0), App.Vector(0, 0, 1), 2), math.radians(-10), math.radians(90)),
], False)
sketch9.addConstraint([
    Sketcher.Constraint("Tangent", 0, 2, 1, 1),
    Sketcher.Constraint("Tangent", 1, 2, 2, 1),
    Sketcher.Constraint("Tangent", 2, 2, 3, 1),
    Sketcher.Constraint("Tangent", 3, 2, 4, 1),
    Sketcher.Constraint("Tangent", 4, 2, 5, 1),
    Sketcher.Constraint("Tangent", 5, 2, 6, 1),
    Sketcher.Constraint("Tangent", 6, 2, 7, 1),
    Sketcher.Constraint("Tangent", 7, 2, 0, 1),
    Sketcher.Constraint("Horizontal", 0),
    Sketcher.Constraint("Horizontal", 4),
    Sketcher.Constraint("Equal", 1, 3),
    Sketcher.Constraint("Equal", 3, 5),
    Sketcher.Constraint("Equal", 5, 7),
    Sketcher.Constraint("Horizontal", 2, 2, 5, 2),
    Sketcher.Constraint("Radius", 1, Q("2.000001 mm")),
    Sketcher.Constraint("Angle", 2, Q("-79.999999 deg")),
    Sketcher.Constraint("DistanceX", -1, 1, 1, 2, Q("39 mm")),
    Sketcher.Constraint("DistanceX", -1, 1, 6, 2, Q("81 mm")),
    Sketcher.Constraint("DistanceY", 3, 3, 1, 3, Q("7 mm")),
    Sketcher.Constraint("DistanceY", -1, 1, 1, 3, Q("28.499999 mm")),
])
pocket8 = body.newObject("PartDesign::Pocket", "Pocket007")
pocket8.Profile = sketch9
pocket8.Type = "ThroughAll"

doc.recompute()
